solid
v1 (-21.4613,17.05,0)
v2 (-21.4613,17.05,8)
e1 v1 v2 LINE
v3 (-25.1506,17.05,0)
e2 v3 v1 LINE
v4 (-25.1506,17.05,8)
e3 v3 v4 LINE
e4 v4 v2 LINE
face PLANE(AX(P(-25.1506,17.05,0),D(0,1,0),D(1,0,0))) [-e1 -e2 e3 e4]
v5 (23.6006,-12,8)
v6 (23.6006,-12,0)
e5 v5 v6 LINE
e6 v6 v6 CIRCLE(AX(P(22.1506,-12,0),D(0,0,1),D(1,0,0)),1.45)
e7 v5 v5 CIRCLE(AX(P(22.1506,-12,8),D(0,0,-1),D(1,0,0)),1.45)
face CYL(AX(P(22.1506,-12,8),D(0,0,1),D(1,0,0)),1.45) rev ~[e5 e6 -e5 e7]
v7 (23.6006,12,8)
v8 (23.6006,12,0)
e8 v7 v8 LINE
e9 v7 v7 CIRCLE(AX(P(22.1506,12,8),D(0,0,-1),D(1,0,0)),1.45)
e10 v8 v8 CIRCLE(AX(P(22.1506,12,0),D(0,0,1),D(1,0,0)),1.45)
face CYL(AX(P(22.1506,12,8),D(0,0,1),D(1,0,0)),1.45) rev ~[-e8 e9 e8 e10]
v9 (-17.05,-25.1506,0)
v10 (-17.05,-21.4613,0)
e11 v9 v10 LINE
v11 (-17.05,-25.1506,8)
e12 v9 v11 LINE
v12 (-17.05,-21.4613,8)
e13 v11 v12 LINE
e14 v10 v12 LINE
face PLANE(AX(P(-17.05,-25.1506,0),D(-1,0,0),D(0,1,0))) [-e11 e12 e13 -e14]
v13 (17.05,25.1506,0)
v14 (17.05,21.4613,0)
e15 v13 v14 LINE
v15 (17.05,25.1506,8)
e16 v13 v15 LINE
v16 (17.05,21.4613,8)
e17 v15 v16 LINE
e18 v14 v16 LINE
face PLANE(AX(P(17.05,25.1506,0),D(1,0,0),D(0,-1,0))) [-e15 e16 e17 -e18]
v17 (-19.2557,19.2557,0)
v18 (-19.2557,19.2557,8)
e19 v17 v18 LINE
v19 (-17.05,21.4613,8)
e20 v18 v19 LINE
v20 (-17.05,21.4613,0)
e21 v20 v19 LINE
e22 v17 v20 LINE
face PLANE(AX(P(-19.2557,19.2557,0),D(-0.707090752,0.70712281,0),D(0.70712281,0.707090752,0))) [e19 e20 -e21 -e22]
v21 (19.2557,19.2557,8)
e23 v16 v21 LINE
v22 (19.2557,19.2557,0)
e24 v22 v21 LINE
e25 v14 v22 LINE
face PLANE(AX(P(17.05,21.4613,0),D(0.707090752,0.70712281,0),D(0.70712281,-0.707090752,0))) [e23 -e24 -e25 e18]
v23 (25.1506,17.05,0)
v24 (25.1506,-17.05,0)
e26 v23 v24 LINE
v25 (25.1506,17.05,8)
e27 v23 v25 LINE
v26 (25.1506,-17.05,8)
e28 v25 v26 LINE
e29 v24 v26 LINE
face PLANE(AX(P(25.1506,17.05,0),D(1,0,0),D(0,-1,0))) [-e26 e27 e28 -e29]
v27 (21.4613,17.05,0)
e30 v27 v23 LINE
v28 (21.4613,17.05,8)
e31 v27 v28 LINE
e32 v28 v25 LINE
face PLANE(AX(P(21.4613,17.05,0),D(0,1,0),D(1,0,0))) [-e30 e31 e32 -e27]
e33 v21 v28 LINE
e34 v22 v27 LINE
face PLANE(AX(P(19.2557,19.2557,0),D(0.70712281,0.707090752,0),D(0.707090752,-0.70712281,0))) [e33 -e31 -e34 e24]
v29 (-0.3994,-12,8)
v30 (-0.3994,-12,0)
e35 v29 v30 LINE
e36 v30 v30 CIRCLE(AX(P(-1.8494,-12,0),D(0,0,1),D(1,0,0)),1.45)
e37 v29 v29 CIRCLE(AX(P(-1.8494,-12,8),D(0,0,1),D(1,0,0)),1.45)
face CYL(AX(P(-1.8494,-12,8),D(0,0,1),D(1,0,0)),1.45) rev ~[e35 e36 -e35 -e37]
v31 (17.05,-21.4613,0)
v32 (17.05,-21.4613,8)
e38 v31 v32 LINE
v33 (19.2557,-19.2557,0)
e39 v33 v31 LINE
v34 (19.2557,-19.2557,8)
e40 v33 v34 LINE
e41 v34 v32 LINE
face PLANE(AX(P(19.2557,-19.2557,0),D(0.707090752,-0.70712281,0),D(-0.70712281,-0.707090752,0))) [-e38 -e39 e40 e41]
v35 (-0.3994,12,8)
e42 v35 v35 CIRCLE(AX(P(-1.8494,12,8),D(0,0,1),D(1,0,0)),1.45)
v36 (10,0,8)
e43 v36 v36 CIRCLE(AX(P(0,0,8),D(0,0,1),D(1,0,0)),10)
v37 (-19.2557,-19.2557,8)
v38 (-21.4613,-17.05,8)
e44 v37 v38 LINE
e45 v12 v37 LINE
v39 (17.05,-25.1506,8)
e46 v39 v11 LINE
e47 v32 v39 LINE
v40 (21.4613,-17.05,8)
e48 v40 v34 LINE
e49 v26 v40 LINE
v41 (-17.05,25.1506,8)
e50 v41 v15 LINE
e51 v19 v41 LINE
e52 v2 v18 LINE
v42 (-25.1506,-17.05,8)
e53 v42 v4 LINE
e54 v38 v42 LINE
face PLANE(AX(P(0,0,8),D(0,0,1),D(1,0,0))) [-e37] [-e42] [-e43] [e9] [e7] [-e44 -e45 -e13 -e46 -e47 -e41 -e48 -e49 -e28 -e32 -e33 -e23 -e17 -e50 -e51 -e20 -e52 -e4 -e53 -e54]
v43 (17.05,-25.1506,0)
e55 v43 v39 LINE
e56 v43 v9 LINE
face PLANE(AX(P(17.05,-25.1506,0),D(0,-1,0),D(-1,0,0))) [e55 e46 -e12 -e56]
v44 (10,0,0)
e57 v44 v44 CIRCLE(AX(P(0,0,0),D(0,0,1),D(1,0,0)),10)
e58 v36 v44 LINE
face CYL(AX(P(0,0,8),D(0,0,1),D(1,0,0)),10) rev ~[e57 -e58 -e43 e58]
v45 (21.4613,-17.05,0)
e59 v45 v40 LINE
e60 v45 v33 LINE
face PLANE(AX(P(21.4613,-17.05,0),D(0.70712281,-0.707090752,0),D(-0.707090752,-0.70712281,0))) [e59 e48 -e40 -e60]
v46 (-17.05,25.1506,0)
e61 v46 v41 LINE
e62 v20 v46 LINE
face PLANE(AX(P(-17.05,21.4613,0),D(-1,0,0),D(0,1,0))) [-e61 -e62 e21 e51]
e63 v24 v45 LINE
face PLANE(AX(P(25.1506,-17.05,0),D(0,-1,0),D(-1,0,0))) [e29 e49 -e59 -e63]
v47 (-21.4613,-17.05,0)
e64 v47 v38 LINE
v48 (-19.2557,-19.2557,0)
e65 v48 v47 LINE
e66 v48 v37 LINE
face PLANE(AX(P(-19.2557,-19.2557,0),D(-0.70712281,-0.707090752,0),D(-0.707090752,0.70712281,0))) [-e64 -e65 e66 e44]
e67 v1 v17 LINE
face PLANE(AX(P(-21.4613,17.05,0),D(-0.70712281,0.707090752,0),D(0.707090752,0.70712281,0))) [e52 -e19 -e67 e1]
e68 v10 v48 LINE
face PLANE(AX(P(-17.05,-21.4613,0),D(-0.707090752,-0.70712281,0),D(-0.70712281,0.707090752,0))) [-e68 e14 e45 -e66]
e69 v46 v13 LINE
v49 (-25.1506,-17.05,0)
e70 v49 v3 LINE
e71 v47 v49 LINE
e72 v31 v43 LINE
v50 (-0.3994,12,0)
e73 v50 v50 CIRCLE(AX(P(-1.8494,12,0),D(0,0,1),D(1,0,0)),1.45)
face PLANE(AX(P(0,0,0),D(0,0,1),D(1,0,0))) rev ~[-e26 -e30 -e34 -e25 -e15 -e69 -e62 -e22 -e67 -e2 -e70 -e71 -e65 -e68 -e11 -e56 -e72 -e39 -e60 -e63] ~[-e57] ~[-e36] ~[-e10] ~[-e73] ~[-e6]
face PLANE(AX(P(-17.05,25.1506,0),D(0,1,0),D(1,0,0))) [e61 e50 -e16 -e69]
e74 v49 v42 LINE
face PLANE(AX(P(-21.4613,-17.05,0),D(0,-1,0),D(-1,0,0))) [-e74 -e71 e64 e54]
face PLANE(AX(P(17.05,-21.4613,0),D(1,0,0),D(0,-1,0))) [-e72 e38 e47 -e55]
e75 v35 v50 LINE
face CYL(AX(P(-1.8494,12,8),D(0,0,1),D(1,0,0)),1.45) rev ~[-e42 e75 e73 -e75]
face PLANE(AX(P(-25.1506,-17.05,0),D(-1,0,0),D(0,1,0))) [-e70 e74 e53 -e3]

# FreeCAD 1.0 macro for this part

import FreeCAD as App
import Part
import Sketcher


def add_polygon(sketch, points):
    """Adds a closed chain of lines whose ends are joined by coincident constraints."""
    first, n = sketch.GeometryCount, len(points)
    for a, b in zip(points, points[1:] + points[:1]):
        sketch.addGeometry(Part.LineSegment(App.Vector(*a, 0), App.Vector(*b, 0)), False)
    for i in range(n):
        sketch.addConstraint(Sketcher.Constraint("Coincident", first + i, 2, first + (i + 1) % n, 1))

doc = App.newDocument("Part")
body = doc.addObject("PartDesign::Body", "Body")

sketch1 = body.newObject("Sketcher::SketchObject", "Sketch")
sketch1.AttachmentSupport = (doc.getObject("XY_Plane"), [""])
sketch1.MapMode = "FlatFace"
add_polygon(sketch1, [(-17.05, 25.1506), (-17.05, 21.4613), (-19.2557, 19.2557), (-21.4613, 17.05), (-25.1506, 17.05), (-25.1506, -17.05), (-21.4613, -17.05), (-19.2557, -19.2557), (-17.05, -21.4613), (-17.05, -25.1506), (17.05, -25.1506), (17.05, -21.4613), (19.2557, -19.2557), (21.4613, -17.05), (25.1506, -17.05), (25.1506, 17.05), (21.4613, 17.05), (19.2557, 19.2557), (17.05, 21.4613), (17.05, 25.1506)])
sketch1.addConstraint([
    Sketcher.Constraint("Vertical", 0),
    Sketcher.Constraint("Horizontal", 3),
    Sketcher.Constraint("Vertical", 4),
    Sketcher.Constraint("Horizontal", 5),
    Sketcher.Constraint("Vertical", 8),
    Sketcher.Constraint("Horizontal", 9),
    Sketcher.Constraint("Vertical", 10),
    Sketcher.Constraint("Horizontal", 13),
    Sketcher.Constraint("Vertical", 14),
    Sketcher.Constraint("Horizontal", 15),
    Sketcher.Constraint("Vertical", 18),
    Sketcher.Constraint("Horizontal", 19),
    Sketcher.Constraint("Symmetric", 0, 2, 10, 2, -1, 1),
    Sketcher.Constraint("Symmetric", 1, 2, 11, 2, -1, 1),
    Sketcher.Constraint("Symmetric", 2, 2, 12, 2, -1, 1),
    Sketcher.Constraint("Symmetric", 4, 2, 14, 2, -1, 1),
    Sketcher.Constraint("Symmetric", 6, 2, 16, 2, -1, 1),
    Sketcher.Constraint("Symmetric", 7, 2, 17, 2, -1, 1),
    Sketcher.Constraint("Symmetric", 7, 2, 10, 2, -2),
    Sketcher.Constraint("Symmetric", 6, 2, 11, 2, -2),
    Sketcher.Constraint("Symmetric", 5, 2, 12, 2, -2),
    Sketcher.Constraint("Parallel", 1, 2),
    Sketcher.Constraint("Perpendicular", 2, 6),
    Sketcher.Constraint("Perpendicular", 12, 16),
    Sketcher.Constraint("Equal", 15, 0),
    Sketcher.Constraint("Equal", 19, 4),
    Sketcher.Constraint("Equal", 0, 8),
    Sketcher.Constraint("Equal", 1, 2),
    Sketcher.Constraint("DistanceX", 9, 1, 9, 2, 34.1),
    Sketcher.Constraint("DistanceX", 3, 2, 3, 1, 3.6893),
    Sketcher.Constraint("DistanceX", 3, 2, 1, 2, 5.895),
])
pad1 = body.newObject("PartDesign::Pad", "Pad")
pad1.Profile = sketch1
pad1.Length = 8

sketch2 = body.newObject("Sketcher::SketchObject", "Sketch001")
sketch2.AttachmentSupport = (doc.getObject("XY_Plane"), [""])
sketch2.MapMode = "FlatFace"
sketch2.AttachmentOffset = App.Placement(App.Vector(0, 0, 8), App.Rotation())
sketch2.addGeometry([
    Part.Circle(App.Vector(22.1506, 12, 0), App.Vector(0, 0, 1), 1.45),
    Part.Circle(App.Vector(22.1506, -12, 0), App.Vector(0, 0, 1), 1.45),
    Part.Circle(App.Vector(-1.8494, -12, 0), App.Vector(0, 0, 1), 1.45),
    Part.Circle(App.Vector(-1.8494, 12, 0), App.Vector(0, 0, 1), 1.45),
    Part.Circle(App.Vector(0, 0, 0), App.Vector(0, 0, 1), 10),
], False)
sketch2.addConstraint([
    Sketcher.Constraint("Coincident", 4, 3, -1, 1),
    Sketcher.Constraint("Equal", 0, 1),
    Sketcher.Constraint("Equal", 1, 2),
    Sketcher.Constraint("Equal", 2, 3),
    Sketcher.Constraint("Symmetric", 0, 3, 1, 3, -1),
    Sketcher.Constraint("Symmetric", 2, 3, 3, 3, -1),
    Sketcher.Constraint("Horizontal", 1, 3, 2, 3),
    Sketcher.Constraint("Diameter", 4, 20.0),
    Sketcher.Constraint("Diameter", 0, 2.9),
    Sketcher.Constraint("DistanceY", -1, 1, 0, 3, 12.0),
    Sketcher.Constraint("DistanceX", 2, 3, 1, 3, 24.0),
    Sketcher.Constraint("DistanceX", -1, 1, 0, 3, 22.1506),
])
pocket1 = body.newObject("PartDesign::Pocket", "Pocket")
pocket1.Profile = sketch2
pocket1.Type = "ThroughAll"

doc.recompute()
